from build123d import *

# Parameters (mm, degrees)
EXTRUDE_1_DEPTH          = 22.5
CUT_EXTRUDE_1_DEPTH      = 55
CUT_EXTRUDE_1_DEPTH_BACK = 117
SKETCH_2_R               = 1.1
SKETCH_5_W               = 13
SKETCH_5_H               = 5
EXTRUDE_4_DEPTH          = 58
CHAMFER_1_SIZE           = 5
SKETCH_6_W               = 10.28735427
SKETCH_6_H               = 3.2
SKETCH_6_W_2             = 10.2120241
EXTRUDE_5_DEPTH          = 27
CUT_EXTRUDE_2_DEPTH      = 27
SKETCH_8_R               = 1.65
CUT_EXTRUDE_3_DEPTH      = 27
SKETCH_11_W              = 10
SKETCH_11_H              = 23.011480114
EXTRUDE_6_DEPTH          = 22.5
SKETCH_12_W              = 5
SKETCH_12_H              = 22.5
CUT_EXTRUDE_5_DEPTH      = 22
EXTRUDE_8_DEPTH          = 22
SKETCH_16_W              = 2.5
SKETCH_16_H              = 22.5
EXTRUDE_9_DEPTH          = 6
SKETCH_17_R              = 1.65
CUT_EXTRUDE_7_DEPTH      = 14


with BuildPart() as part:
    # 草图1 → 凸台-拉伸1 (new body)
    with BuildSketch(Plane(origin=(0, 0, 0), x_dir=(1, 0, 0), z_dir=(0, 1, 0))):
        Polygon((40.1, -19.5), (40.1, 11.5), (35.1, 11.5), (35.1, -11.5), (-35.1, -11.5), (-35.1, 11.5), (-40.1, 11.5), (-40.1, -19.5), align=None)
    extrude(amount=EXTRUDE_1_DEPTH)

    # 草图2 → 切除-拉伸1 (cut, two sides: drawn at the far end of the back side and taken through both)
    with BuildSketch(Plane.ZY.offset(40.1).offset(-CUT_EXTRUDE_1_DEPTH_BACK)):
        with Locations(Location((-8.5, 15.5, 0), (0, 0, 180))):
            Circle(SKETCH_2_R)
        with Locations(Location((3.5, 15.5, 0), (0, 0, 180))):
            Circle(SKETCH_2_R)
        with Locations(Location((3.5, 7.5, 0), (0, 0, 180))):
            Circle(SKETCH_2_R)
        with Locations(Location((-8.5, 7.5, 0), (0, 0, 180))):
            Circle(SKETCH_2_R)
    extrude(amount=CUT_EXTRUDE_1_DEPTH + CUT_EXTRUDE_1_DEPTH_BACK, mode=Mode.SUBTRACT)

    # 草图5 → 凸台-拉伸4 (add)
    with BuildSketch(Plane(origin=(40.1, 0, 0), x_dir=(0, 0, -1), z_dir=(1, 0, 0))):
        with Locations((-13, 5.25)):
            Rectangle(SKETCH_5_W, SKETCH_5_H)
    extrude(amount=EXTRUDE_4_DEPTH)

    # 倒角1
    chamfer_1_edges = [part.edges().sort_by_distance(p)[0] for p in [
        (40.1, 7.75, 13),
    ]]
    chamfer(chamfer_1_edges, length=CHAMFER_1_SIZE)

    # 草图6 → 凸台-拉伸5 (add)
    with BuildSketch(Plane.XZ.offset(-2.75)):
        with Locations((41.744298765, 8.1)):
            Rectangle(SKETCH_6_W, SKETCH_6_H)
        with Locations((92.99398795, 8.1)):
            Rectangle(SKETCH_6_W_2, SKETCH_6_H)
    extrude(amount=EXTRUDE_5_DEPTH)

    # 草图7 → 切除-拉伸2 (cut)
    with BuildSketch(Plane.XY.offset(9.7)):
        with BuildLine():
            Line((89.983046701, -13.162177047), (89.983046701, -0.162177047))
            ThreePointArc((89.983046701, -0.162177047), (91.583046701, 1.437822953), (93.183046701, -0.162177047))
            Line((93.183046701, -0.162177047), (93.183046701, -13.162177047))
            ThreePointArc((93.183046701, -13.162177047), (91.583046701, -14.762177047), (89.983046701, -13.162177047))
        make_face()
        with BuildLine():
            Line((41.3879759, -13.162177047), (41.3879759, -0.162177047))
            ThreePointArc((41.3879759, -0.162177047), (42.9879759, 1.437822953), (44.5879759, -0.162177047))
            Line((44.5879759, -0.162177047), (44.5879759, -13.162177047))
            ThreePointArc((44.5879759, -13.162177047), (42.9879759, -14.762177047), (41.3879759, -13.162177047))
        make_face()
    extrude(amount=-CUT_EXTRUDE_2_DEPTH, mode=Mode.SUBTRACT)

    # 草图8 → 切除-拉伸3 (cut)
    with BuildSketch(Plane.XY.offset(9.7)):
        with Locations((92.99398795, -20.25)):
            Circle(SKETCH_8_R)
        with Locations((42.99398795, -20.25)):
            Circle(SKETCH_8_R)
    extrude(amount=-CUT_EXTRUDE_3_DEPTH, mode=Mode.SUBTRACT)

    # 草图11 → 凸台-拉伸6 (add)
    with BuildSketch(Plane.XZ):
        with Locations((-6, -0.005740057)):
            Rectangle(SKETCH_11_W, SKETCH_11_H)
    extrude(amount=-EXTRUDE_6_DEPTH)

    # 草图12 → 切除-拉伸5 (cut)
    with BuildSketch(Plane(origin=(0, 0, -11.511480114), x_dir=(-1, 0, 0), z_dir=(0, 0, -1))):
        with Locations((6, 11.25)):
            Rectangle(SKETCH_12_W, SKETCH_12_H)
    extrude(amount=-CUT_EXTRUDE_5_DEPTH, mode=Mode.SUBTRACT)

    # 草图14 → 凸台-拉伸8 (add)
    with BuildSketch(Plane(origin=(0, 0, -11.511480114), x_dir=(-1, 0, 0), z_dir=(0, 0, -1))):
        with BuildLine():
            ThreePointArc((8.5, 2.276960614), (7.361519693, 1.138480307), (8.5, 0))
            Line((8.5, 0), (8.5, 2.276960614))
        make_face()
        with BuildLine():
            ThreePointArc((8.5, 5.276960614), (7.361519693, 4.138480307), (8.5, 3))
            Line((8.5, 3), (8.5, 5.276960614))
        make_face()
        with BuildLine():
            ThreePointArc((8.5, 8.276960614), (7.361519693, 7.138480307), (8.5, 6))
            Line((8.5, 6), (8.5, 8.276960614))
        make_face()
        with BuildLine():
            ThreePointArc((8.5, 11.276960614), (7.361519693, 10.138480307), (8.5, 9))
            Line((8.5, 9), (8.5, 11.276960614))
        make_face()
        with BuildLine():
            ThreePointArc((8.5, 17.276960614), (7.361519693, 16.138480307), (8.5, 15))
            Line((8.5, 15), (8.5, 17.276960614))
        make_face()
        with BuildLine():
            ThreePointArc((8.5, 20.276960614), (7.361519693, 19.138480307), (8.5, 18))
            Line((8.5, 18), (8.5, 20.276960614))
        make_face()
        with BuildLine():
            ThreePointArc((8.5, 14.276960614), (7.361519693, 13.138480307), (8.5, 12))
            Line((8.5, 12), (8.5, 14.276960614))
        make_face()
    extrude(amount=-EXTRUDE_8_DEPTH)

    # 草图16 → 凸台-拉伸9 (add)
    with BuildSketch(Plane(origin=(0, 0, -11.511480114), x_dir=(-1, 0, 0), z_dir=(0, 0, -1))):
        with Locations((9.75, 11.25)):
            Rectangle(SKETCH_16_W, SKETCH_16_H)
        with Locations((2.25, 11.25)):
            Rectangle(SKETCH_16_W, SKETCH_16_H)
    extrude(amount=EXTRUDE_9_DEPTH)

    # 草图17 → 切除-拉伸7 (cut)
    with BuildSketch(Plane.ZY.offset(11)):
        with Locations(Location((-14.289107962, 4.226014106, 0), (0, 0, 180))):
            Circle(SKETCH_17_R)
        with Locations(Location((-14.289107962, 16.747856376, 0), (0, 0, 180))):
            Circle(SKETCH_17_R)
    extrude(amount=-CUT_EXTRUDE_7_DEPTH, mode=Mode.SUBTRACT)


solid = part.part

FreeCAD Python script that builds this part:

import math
import FreeCAD as App
import Part
import Sketcher
from FreeCAD import Vector
Q = App.Units.Quantity


def edges_at(feature, points):
    """Names of the edges that pass closest to the given points."""
    edges = feature.Shape.Edges
    near = lambda p: min(range(len(edges)), key=lambda i: edges[i].distToShape(Part.Vertex(*p))[0])
    return sorted({f"Edge{near(p) + 1}" for p in points})


def add_polygon(sketch, points):
    """Adds a closed chain of lines whose ends are joined by coincident constraints."""
    first, n = sketch.GeometryCount, len(points)
    for a, b in zip(points, points[1:] + points[:1]):
        sketch.addGeometry(Part.LineSegment(App.Vector(*a, 0), App.Vector(*b, 0)), False)
    for i in range(n):
        sketch.addConstraint(Sketcher.Constraint("Coincident", first + i, 2, first + (i + 1) % n, 1))

doc = App.newDocument("Part")
body = doc.addObject("PartDesign::Body", "Body")

# Sketch on XZ plane
sketch1 = body.newObject("Sketcher::SketchObject", "Sketch")
sketch1.AttachmentSupport = (doc.getObject("XZ_Plane"), [""])
sketch1.MapMode = "FlatFace"
add_polygon(sketch1, [(40, 20), (40, -12), (35, -12), (35, 12), (-35, 12), (-35, -12), (-40, -12), (-40, 20)])  # lines 0-7
sketch1.addConstraint([
    Sketcher.Constraint("Vertical", 0),
    Sketcher.Constraint("Horizontal", 1),
    Sketcher.Constraint("Vertical", 2),
    Sketcher.Constraint("Horizontal", 3),
    Sketcher.Constraint("Vertical", 4),
    Sketcher.Constraint("Horizontal", 5),
    Sketcher.Constraint("Vertical", 6),
    Sketcher.Constraint("Horizontal", 7),
    Sketcher.Constraint("Symmetric", 1, 2, 3, 2, -1, 1),
    Sketcher.Constraint("Symmetric", 0, 2, 5, 2, -2),
    Sketcher.Constraint("DistanceX", 1, 2, 1, 1, Q("5 mm")),
    Sketcher.Constraint("DistanceY", 0, 2, 0, 1, Q("31 mm")),
    Sketcher.Constraint("DistanceY", 2, 1, 2, 2, Q("23 mm")),
    Sketcher.Constraint("DistanceX", 3, 2, 3, 1, Q("70.2 mm")),
])
pad1 = body.newObject("PartDesign::Pad", "Pad")
pad1.Profile = sketch1
pad1.Length = 22.5
pad1.Reversed = True

# Sketch on YZ plane
sketch2 = body.newObject("Sketcher::SketchObject", "Sketch001")
sketch2.AttachmentSupport = (doc.getObject("YZ_Plane"), [""])
sketch2.MapMode = "FlatFace"
sketch2.AttachmentOffset = App.Placement(Vector(0, 0, -40.1), App.Rotation())
sketch2.addGeometry([
    Part.Circle(Vector(15.5, -8.5, 0), Vector(0, 0, 1), 1.1),
    Part.Circle(Vector(15.5, 3.5, 0), Vector(0, 0, 1), 1.1),
    Part.Circle(Vector(7.5, 3.5, 0), Vector(0, 0, 1), 1.1),
    Part.Circle(Vector(7.5, -8.5, 0), Vector(0, 0, 1), 1.1),
], False)
sketch2.addConstraint([
    Sketcher.Constraint("Equal", 0, 1),
    Sketcher.Constraint("Equal", 1, 2),
    Sketcher.Constraint("Equal", 2, 3),
    Sketcher.Constraint("Horizontal", 1, 3, 2, 3),
    Sketcher.Constraint("Horizontal", 0, 3, 3, 3),
    Sketcher.Constraint("Vertical", 0, 3, 1, 3),
    Sketcher.Constraint("Vertical", 2, 3, 3, 3),
    Sketcher.Constraint("Diameter", 0, Q("2.2 mm")),
    Sketcher.Constraint("DistanceY", 0, 3, 1, 3, Q("12 mm")),
    Sketcher.Constraint("DistanceX", 2, 3, 1, 3, Q("8 mm")),
    Sketcher.Constraint("DistanceX", -1, 1, 0, 3, Q("15.5 mm")),
    Sketcher.Constraint("DistanceY", 0, 3, -1, 1, Q("8.5 mm")),
])
pocket1 = body.newObject("PartDesign::Pocket", "Pocket")
pocket1.Profile = sketch2
pocket1.Type = "ThroughAll"
pocket1.Midplane = True

# Sketch on YZ plane
sketch3 = body.newObject("Sketcher::SketchObject", "Sketch002")
sketch3.AttachmentSupport = (doc.getObject("YZ_Plane"), [""])
sketch3.MapMode = "FlatFace"
sketch3.AttachmentOffset = App.Placement(Vector(0, 0, 40.1), App.Rotation())
add_polygon(sketch3, [(8, 20), (3, 20), (3, 6), (8, 6)])  # lines 0-3
sketch3.addConstraint([
    Sketcher.Constraint("Horizontal", 0),
    Sketcher.Constraint("Vertical", 1),
    Sketcher.Constraint("Horizontal", 2),
    Sketcher.Constraint("Vertical", 3),
    Sketcher.Constraint("DistanceX", 0, 2, 0, 1, Q("5 mm")),
    Sketcher.Constraint("DistanceY", 1, 2, 1, 1, Q("13 mm")),
    Sketcher.Constraint("DistanceY", -1, 1, 0, 2, Q("19.5 mm")),
    Sketcher.Constraint("DistanceX", -1, 1, 0, 2, Q("2.75 mm")),
])
pad2 = body.newObject("PartDesign::Pad", "Pad001")
pad2.Profile = sketch3
pad2.Length = 58
doc.recompute()

chamfer = body.newObject("PartDesign::Chamfer", "Chamfer")
chamfer.Base = (pad2, edges_at(pad2, [(40.1, 7.75, 13)]))
chamfer.Size = 5

# Sketch on XZ plane
sketch4 = body.newObject("Sketcher::SketchObject", "Sketch003")
sketch4.AttachmentSupport = (doc.getObject("XZ_Plane"), [""])
sketch4.MapMode = "FlatFace"
sketch4.AttachmentOffset = App.Placement(Vector(0, 0, -2.75), App.Rotation())
add_polygon(sketch4, [(36.6, 9.7), (36.6, 6.5), (46.9, 6.5), (46.9, 9.7)])  # lines 0-3
add_polygon(sketch4, [(87.9, 9.7), (87.9, 6.5), (98.1, 6.5), (98.1, 9.7)])  # lines 4-7
sketch4.addConstraint([
    Sketcher.Constraint("Vertical", 0),
    Sketcher.Constraint("Horizontal", 1),
    Sketcher.Constraint("Vertical", 2),
    Sketcher.Constraint("Horizontal", 3),
    Sketcher.Constraint("Vertical", 4),
    Sketcher.Constraint("Horizontal", 5),
    Sketcher.Constraint("Vertical", 6),
    Sketcher.Constraint("Horizontal", 7),
    Sketcher.Constraint("Horizontal", 1, 2, 4, 2),
    Sketcher.Constraint("Horizontal", 3, 2, 6, 2),
    Sketcher.Constraint("DistanceY", 0, 2, 0, 1, Q("3.2 mm")),
    Sketcher.Constraint("DistanceX", 1, 2, 4, 2, Q("41 mm")),
    Sketcher.Constraint("DistanceY", -1, 1, 0, 2, Q("6.5 mm")),
    Sketcher.Constraint("DistanceX", -1, 1, 5, 2, Q("98.1 mm")),
    Sketcher.Constraint("DistanceX", 1, 1, 1, 2, Q("10.287354 mm")),
    Sketcher.Constraint("DistanceX", 5, 1, 5, 2, Q("10.212024 mm")),
])
pad3 = body.newObject("PartDesign::Pad", "Pad002")
pad3.Profile = sketch4
pad3.Length = 27

# Sketch on XY plane
sketch5 = body.newObject("Sketcher::SketchObject", "Sketch004")
sketch5.AttachmentSupport = (doc.getObject("XY_Plane"), [""])
sketch5.MapMode = "FlatFace"
sketch5.AttachmentOffset = App.Placement(Vector(0, 0, 9.7), App.Rotation())
sketch5.addGeometry([
    Part.LineSegment(Vector(90, -0.2, 0), Vector(90, -13.2, 0)),  # 0
    Part.ArcOfCircle(Part.Circle(Vector(91.6, -13.2, 0), Vector(0, 0, 1), 1.6), math.radians(180), math.radians(360)),  # 1
    Part.LineSegment(Vector(93.2, -13.2, 0), Vector(93.2, -0.2, 0)),  # 2
    Part.ArcOfCircle(Part.Circle(Vector(91.6, -0.2, 0), Vector(0, 0, 1), 1.6), math.radians(0), math.radians(180)),  # 3
    Part.LineSegment(Vector(41.4, -0.2, 0), Vector(41.4, -13.2, 0)),  # 4
    Part.ArcOfCircle(Part.Circle(Vector(43, -13.2, 0), Vector(0, 0, 1), 1.6), math.radians(180), math.radians(360)),  # 5
    Part.LineSegment(Vector(44.6, -13.2, 0), Vector(44.6, -0.2, 0)),  # 6
    Part.ArcOfCircle(Part.Circle(Vector(43, -0.2, 0), Vector(0, 0, 1), 1.6), math.radians(0), math.radians(180)),  # 7
], False)
sketch5.addConstraint([
    Sketcher.Constraint("Tangent", 0, 2, 1, 1),
    Sketcher.Constraint("Tangent", 1, 2, 2, 1),
    Sketcher.Constraint("Tangent", 2, 2, 3, 1),
    Sketcher.Constraint("Tangent", 3, 2, 0, 1),
    Sketcher.Constraint("Tangent", 4, 2, 5, 1),
    Sketcher.Constraint("Tangent", 5, 2, 6, 1),
    Sketcher.Constraint("Tangent", 6, 2, 7, 1),
    Sketcher.Constraint("Tangent", 7, 2, 4, 1),
    Sketcher.Constraint("Vertical", 0),
    Sketcher.Constraint("Vertical", 2),
    Sketcher.Constraint("Vertical", 4),
    Sketcher.Constraint("Vertical", 6),
    Sketcher.Constraint("Equal", 3, 5),
    Sketcher.Constraint("Horizontal", 1, 3, 5, 3),
    Sketcher.Constraint("Horizontal", 3, 3, 7, 3),
    Sketcher.Constraint("Radius", 1, Q("1.6 mm")),
    Sketcher.Constraint("DistanceY", 0, 2, 0, 1, Q("13 mm")),
    Sketcher.Constraint("DistanceX", 5, 3, 1, 3, Q("48.595071 mm")),
    Sketcher.Constraint("DistanceX", -1, 1, 1, 3, Q("91.583047 mm")),
    Sketcher.Constraint("DistanceY", 1, 3, -1, 1, Q("13.162177 mm")),
])
pocket2 = body.newObject("PartDesign::Pocket", "Pocket001")
pocket2.Profile = sketch5
pocket2.Length = 27

# Sketch on XY plane
sketch6 = body.newObject("Sketcher::SketchObject", "Sketch005")
sketch6.AttachmentSupport = (doc.getObject("XY_Plane"), [""])
sketch6.MapMode = "FlatFace"
sketch6.AttachmentOffset = App.Placement(Vector(0, 0, 9.7), App.Rotation())
sketch6.addGeometry([
    Part.Circle(Vector(93, -20.2, 0), Vector(0, 0, 1), 1.6),
    Part.Circle(Vector(43, -20.2, 0), Vector(0, 0, 1), 1.6),
], False)
sketch6.addConstraint([
    Sketcher.Constraint("Equal", 0, 1),
    Sketcher.Constraint("Horizontal", 0, 3, 1, 3),
    Sketcher.Constraint("Diameter", 0, Q("3.3 mm")),
    Sketcher.Constraint("DistanceX", 1, 3, 0, 3, Q("50 mm")),
    Sketcher.Constraint("DistanceY", 0, 3, -1, 1, Q("20.25 mm")),
    Sketcher.Constraint("DistanceX", -1, 1, 0, 3, Q("92.993988 mm")),
])
pocket3 = body.newObject("PartDesign::Pocket", "Pocket002")
pocket3.Profile = sketch6
pocket3.Length = 27

# Sketch on XZ plane
sketch7 = body.newObject("Sketcher::SketchObject", "Sketch006")
sketch7.AttachmentSupport = (doc.getObject("XZ_Plane"), [""])
sketch7.MapMode = "FlatFace"
add_polygon(sketch7, [(-11, 12), (-11, -12), (-1, -12), (-1, 12)])  # lines 0-3
sketch7.addConstraint([
    Sketcher.Constraint("Vertical", 0),
    Sketcher.Constraint("Horizontal", 1),
    Sketcher.Constraint("Vertical", 2),
    Sketcher.Constraint("Horizontal", 3),
    Sketcher.Constraint("DistanceX", 1, 1, 1, 2, Q("10 mm")),
    Sketcher.Constraint("DistanceX", 0, 2, -1, 1, Q("11 mm")),
    Sketcher.Constraint("DistanceY", -1, 1, 2, 2, Q("11.5 mm")),
    Sketcher.Constraint("DistanceY", 0, 2, 0, 1, Q("23.01148 mm")),
])
pad4 = body.newObject("PartDesign::Pad", "Pad003")
pad4.Profile = sketch7
pad4.Length = 22.5
pad4.Reversed = True

# Sketch on XY plane
sketch8 = body.newObject("Sketcher::SketchObject", "Sketch007")
sketch8.AttachmentSupport = (doc.getObject("XY_Plane"), [""])
sketch8.MapMode = "FlatFace"
sketch8.AttachmentOffset = App.Placement(Vector(0, 0, -11.51148), App.Rotation())
add_polygon(sketch8, [(-4, 22), (-4, 0), (-8, 0), (-8, 22)])  # lines 0-3
sketch8.addConstraint([
    Sketcher.Constraint("Vertical", 0),
    Sketcher.Constraint("Horizontal", 1),
    Sketcher.Constraint("Vertical", 2),
    Sketcher.Constraint("Horizontal", 3),
    Sketcher.Constraint("PointOnObject", 0, 2, -1),
    Sketcher.Constraint("DistanceX", 1, 2, 1, 1, Q("5 mm")),
    Sketcher.Constraint("DistanceY", 0, 2, 0, 1, Q("22.5 mm")),
    Sketcher.Constraint("DistanceX", 0, 2, -1, 1, Q("3.5 mm")),
])
pocket4 = body.newObject("PartDesign::Pocket", "Pocket003")
pocket4.Profile = sketch8
pocket4.Length = 22
pocket4.Reversed = True

# Sketch on XY plane
sketch9 = body.newObject("Sketcher::SketchObject", "Sketch008")
sketch9.AttachmentSupport = (doc.getObject("XY_Plane"), [""])
sketch9.MapMode = "FlatFace"
sketch9.AttachmentOffset = App.Placement(Vector(0, 0, -11.51148), App.Rotation())
sketch9.addGeometry([
    Part.ArcOfCircle(Part.Circle(Vector(-8.5, 1.1, 0), Vector(0, 0, 1), 1.1), math.radians(-90), math.radians(90)),  # 0
    Part.LineSegment(Vector(-8.5, 0, 0), Vector(-8.5, 2.3, 0)),  # 1
    Part.ArcOfCircle(Part.Circle(Vector(-8.5, 4.1, 0), Vector(0, 0, 1), 1.1), math.radians(-90), math.radians(90)),  # 2
    Part.LineSegment(Vector(-8.5, 3, 0), Vector(-8.5, 5.3, 0)),  # 3
    Part.ArcOfCircle(Part.Circle(Vector(-8.5, 7.1, 0), Vector(0, 0, 1), 1.1), math.radians(-90), math.radians(90)),  # 4
    Part.LineSegment(Vector(-8.5, 6, 0), Vector(-8.5, 8.3, 0)),  # 5
    Part.ArcOfCircle(Part.Circle(Vector(-8.5, 10.1, 0), Vector(0, 0, 1), 1.1), math.radians(-90), math.radians(90)),  # 6
    Part.LineSegment(Vector(-8.5, 9, 0), Vector(-8.5, 11.3, 0)),  # 7
    Part.ArcOfCircle(Part.Circle(Vector(-8.5, 16.1, 0), Vector(0, 0, 1), 1.1), math.radians(-90), math.radians(90)),  # 8
    Part.LineSegment(Vector(-8.5, 15, 0), Vector(-8.5, 17.3, 0)),  # 9
    Part.ArcOfCircle(Part.Circle(Vector(-8.5, 19.1, 0), Vector(0, 0, 1), 1.1), math.radians(-90), math.radians(90)),  # 10
    Part.LineSegment(Vector(-8.5, 18, 0), Vector(-8.5, 20.3, 0)),  # 11
    Part.ArcOfCircle(Part.Circle(Vector(-8.5, 13.1, 0), Vector(0, 0, 1), 1.1), math.radians(-90), math.radians(90)),  # 12
    Part.LineSegment(Vector(-8.5, 12, 0), Vector(-8.5, 14.3, 0)),  # 13
], False)
sketch9.addConstraint([
    Sketcher.Constraint("Coincident", 0, 1, 1, 1),
    Sketcher.Constraint("Coincident", 1, 2, 0, 2),
    Sketcher.Constraint("Coincident", 2, 1, 3, 1),
    Sketcher.Constraint("Coincident", 3, 2, 2, 2),
    Sketcher.Constraint("Coincident", 4, 1, 5, 1),
    Sketcher.Constraint("Coincident", 5, 2, 4, 2),
    Sketcher.Constraint("Coincident", 6, 1, 7, 1),
    Sketcher.Constraint("Coincident", 7, 2, 6, 2),
    Sketcher.Constraint("Coincident", 8, 1, 9, 1),
    Sketcher.Constraint("Coincident", 9, 2, 8, 2),
    Sketcher.Constraint("Coincident", 10, 1, 11, 1),
    Sketcher.Constraint("Coincident", 11, 2, 10, 2),
    Sketcher.Constraint("Coincident", 12, 1, 13, 1),
    Sketcher.Constraint("Coincident", 13, 2, 12, 2),
    Sketcher.Constraint("Vertical", 1),
    Sketcher.Constraint("Vertical", 3),
    Sketcher.Constraint("Vertical", 5),
    Sketcher.Constraint("Vertical", 7),
    Sketcher.Constraint("Vertical", 9),
    Sketcher.Constraint("Vertical", 11),
    Sketcher.Constraint("Vertical", 13),
    Sketcher.Constraint("Equal", 0, 2),
    Sketcher.Constraint("Equal", 2, 4),
    Sketcher.Constraint("Equal", 4, 6),
    Sketcher.Constraint("Equal", 6, 8),
    Sketcher.Constraint("Equal", 8, 10),
    Sketcher.Constraint("Equal", 10, 12),
    Sketcher.Constraint("PointOnObject", 0, 1, -1),
    Sketcher.Constraint("Vertical", 0, 3, 2, 3),
    Sketcher.Constraint("Vertical", 2, 3, 4, 3),
    Sketcher.Constraint("Vertical", 4, 3, 6, 3),
    Sketcher.Constraint("Vertical", 6, 3, 8, 3),
    Sketcher.Constraint("Vertical", 8, 3, 10, 3),
    Sketcher.Constraint("Vertical", 10, 3, 12, 3),
    Sketcher.Constraint("Vertical", 12, 3, 0, 1),
    Sketcher.Constraint("Vertical", 1, 2, 2, 1),
    Sketcher.Constraint("Vertical", 3, 2, 4, 1),
    Sketcher.Constraint("Vertical", 5, 2, 6, 1),
    Sketcher.Constraint("Vertical", 7, 2, 8, 1),
    Sketcher.Constraint("Vertical", 9, 2, 10, 1),
    Sketcher.Constraint("Vertical", 11, 2, 12, 1),
    Sketcher.Constraint("DistanceY", -1, 1, 2, 1, Q("3 mm")),
    Sketcher.Constraint("DistanceY", -1, 1, 4, 1, Q("6 mm")),
    Sketcher.Constraint("DistanceY", -1, 1, 6, 1, Q("9 mm")),
    Sketcher.Constraint("DistanceY", -1, 1, 8, 1, Q("15 mm")),
    Sketcher.Constraint("DistanceY", -1, 1, 10, 1, Q("18 mm")),
    Sketcher.Constraint("DistanceY", -1, 1, 12, 1, Q("12 mm")),
    Sketcher.Constraint("DistanceX", 0, 3, -1, 1, Q("8.5 mm")),
    Sketcher.Constraint("Radius", 0, Q("1.13848 mm")),
])
pad5 = body.newObject("PartDesign::Pad", "Pad004")
pad5.Profile = sketch9
pad5.Length = 22

# Sketch on XY plane
sketch10 = body.newObject("Sketcher::SketchObject", "Sketch009")
sketch10.AttachmentSupport = (doc.getObject("XY_Plane"), [""])
sketch10.MapMode = "FlatFace"
sketch10.AttachmentOffset = App.Placement(Vector(0, 0, -11.51148), App.Rotation())
add_polygon(sketch10, [(-8.5, 22.5), (-8.5, 0), (-11, 0), (-11, 22.5)])  # lines 0-3
add_polygon(sketch10, [(-1, 22.5), (-1, 0), (-3.5, 0), (-3.5, 22.5)])  # lines 4-7
sketch10.addConstraint([
    Sketcher.Constraint("Vertical", 0),
    Sketcher.Constraint("Horizontal", 1),
    Sketcher.Constraint("Vertical", 2),
    Sketcher.Constraint("Horizontal", 3),
    Sketcher.Constraint("Vertical", 4),
    Sketcher.Constraint("Horizontal", 5),
    Sketcher.Constraint("Vertical", 6),
    Sketcher.Constraint("Horizontal", 7),
    Sketcher.Constraint("PointOnObject", 0, 2, -1),
    Sketcher.Constraint("PointOnObject", 4, 2, -1),
    Sketcher.Constraint("Horizontal", 3, 2, 6, 2),
    Sketcher.Constraint("Equal", 3, 5),
    Sketcher.Constraint("DistanceX", 1, 2, 1, 1, Q("2.5 mm")),
    Sketcher.Constraint("DistanceY", 0, 2, 0, 1, Q("22.5 mm")),
    Sketcher.Constraint("DistanceX", 1, 2, -1, 1, Q("11 mm")),
    Sketcher.Constraint("DistanceX", 4, 2, -1, 1, Q("1 mm")),
])
pad6 = body.newObject("PartDesign::Pad", "Pad005")
pad6.Profile = sketch10
pad6.Length = 6
pad6.Reversed = True

# Sketch on YZ plane
sketch11 = body.newObject("Sketcher::SketchObject", "Sketch010")
sketch11.AttachmentSupport = (doc.getObject("YZ_Plane"), [""])
sketch11.MapMode = "FlatFace"
sketch11.AttachmentOffset = App.Placement(Vector(0, 0, -11), App.Rotation())
sketch11.addGeometry([
    Part.Circle(Vector(4.2, -14.3, 0), Vector(0, 0, 1), 1.6),
    Part.Circle(Vector(16.7, -14.3, 0), Vector(0, 0, 1), 1.6),
], False)
sketch11.addConstraint([
    Sketcher.Constraint("Equal", 0, 1),
    Sketcher.Constraint("Horizontal", 0, 3, 1, 3),
    Sketcher.Constraint("Diameter", 0, Q("3.3 mm")),
    Sketcher.Constraint("DistanceX", -1, 1, 0, 3, Q("4.226014 mm")),
    Sketcher.Constraint("DistanceY", 0, 3, -1, 1, Q("14.289108 mm")),
    Sketcher.Constraint("DistanceX", -1, 1, 1, 3, Q("16.747856 mm")),
])
pocket5 = body.newObject("PartDesign::Pocket", "Pocket004")
pocket5.Profile = sketch11
pocket5.Length = 14
pocket5.Reversed = True

doc.recompute()
